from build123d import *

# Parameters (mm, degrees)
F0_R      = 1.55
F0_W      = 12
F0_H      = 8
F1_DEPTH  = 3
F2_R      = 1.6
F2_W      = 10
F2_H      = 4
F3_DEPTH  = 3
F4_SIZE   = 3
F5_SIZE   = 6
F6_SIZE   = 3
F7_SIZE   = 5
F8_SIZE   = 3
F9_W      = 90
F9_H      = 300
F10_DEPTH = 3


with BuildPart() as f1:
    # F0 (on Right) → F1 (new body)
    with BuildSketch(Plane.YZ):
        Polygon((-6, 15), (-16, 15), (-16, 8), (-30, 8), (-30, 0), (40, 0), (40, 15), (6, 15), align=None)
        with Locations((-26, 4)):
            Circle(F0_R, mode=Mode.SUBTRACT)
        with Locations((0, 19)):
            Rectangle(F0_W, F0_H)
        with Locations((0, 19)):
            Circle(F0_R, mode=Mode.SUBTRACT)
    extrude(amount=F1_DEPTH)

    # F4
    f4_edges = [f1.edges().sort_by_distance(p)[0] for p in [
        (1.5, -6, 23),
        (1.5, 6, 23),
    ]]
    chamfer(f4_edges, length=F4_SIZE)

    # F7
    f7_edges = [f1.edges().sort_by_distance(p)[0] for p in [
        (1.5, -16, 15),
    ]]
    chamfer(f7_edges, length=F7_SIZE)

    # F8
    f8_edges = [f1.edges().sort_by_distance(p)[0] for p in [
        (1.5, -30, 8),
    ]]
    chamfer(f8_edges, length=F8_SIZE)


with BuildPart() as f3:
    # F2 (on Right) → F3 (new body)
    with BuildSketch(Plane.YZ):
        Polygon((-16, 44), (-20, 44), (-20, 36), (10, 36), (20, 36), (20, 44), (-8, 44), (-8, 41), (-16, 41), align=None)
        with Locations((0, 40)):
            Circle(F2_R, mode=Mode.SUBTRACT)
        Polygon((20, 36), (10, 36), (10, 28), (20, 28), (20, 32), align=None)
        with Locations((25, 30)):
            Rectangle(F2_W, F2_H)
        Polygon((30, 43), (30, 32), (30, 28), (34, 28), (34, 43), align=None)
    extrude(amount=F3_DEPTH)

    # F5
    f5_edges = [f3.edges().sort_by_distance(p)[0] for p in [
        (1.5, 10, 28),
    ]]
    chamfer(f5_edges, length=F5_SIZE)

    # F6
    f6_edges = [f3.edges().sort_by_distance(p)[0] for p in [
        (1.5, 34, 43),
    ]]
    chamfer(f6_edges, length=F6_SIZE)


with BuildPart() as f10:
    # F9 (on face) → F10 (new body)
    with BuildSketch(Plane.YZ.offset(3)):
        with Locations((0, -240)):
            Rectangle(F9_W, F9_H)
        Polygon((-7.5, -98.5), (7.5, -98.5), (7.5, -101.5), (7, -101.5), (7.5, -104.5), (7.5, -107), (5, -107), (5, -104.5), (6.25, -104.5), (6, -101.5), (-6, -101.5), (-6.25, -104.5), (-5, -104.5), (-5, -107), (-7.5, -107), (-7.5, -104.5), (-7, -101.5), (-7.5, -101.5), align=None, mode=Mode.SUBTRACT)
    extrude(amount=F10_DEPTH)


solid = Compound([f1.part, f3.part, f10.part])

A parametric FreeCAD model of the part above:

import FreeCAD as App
import Part
import Sketcher
from FreeCAD import Vector
Q = App.Units.Quantity


def edges_at(feature, points):
    """Names of the edges that pass closest to the given points."""
    edges = feature.Shape.Edges
    near = lambda p: min(range(len(edges)), key=lambda i: edges[i].distToShape(Part.Vertex(*p))[0])
    return sorted({f"Edge{near(p) + 1}" for p in points})


def add_polygon(sketch, points):
    """Adds a closed chain of lines whose ends are joined by coincident constraints."""
    first, n = sketch.GeometryCount, len(points)
    for a, b in zip(points, points[1:] + points[:1]):
        sketch.addGeometry(Part.LineSegment(App.Vector(*a, 0), App.Vector(*b, 0)), False)
    for i in range(n):
        sketch.addConstraint(Sketcher.Constraint("Coincident", first + i, 2, first + (i + 1) % n, 1))

doc = App.newDocument("Part")
body = doc.addObject("PartDesign::Body", "Body")

# Sketch on YZ plane
sketch1 = body.newObject("Sketcher::SketchObject", "Sketch")
sketch1.AttachmentSupport = (doc.getObject("YZ_Plane"), [""])
sketch1.MapMode = "FlatFace"
add_polygon(sketch1, [(-16, 15), (-16, 8), (-30, 8), (-30, 0), (40, 0), (40, 15), (6, 15), (6, 23), (-6, 23), (-6, 15)])  # lines 0-9
sketch1.addGeometry(Part.Circle(Vector(-26, 4, 0), Vector(0, 0, 1), 1.6), False)  # 10
sketch1.addGeometry(Part.Circle(Vector(0, 19, 0), Vector(0, 0, 1), 1.6), False)  # 11
sketch1.addConstraint([
    Sketcher.Constraint("Vertical", 0),
    Sketcher.Constraint("Horizontal", 1),
    Sketcher.Constraint("Vertical", 2),
    Sketcher.Constraint("Horizontal", 3),
    Sketcher.Constraint("Vertical", 4),
    Sketcher.Constraint("Horizontal", 5),
    Sketcher.Constraint("Vertical", 6),
    Sketcher.Constraint("Horizontal", 7),
    Sketcher.Constraint("Vertical", 8),
    Sketcher.Constraint("Horizontal", 9),
    Sketcher.Constraint("Equal", 10, 11),
    Sketcher.Constraint("Symmetric", 5, 2, 8, 2, -2),
    Sketcher.Constraint("PointOnObject", 11, 3, -2),
    Sketcher.Constraint("PointOnObject", 2, 2, -1),
    Sketcher.Constraint("Equal", 2, 6),
    Sketcher.Constraint("Diameter", 10, Q("3.1 mm")),
    Sketcher.Constraint("DistanceX", 1, 2, 1, 1, Q("14 mm")),
    Sketcher.Constraint("DistanceX", 3, 1, 3, 2, Q("70 mm")),
    Sketcher.Constraint("DistanceX", 5, 2, 5, 1, Q("34 mm")),
    Sketcher.Constraint("DistanceX", 7, 2, 7, 1, Q("12 mm")),
    Sketcher.Constraint("DistanceY", 0, 2, 0, 1, Q("7 mm")),
    Sketcher.Constraint("DistanceY", 2, 2, 2, 1, Q("8 mm")),
    Sketcher.Constraint("DistanceX", 10, 3, -1, 1, Q("26 mm")),
    Sketcher.Constraint("DistanceY", -1, 1, 10, 3, Q("4 mm")),
    Sketcher.Constraint("DistanceY", -1, 1, 11, 3, Q("19 mm")),
])
pad1 = body.newObject("PartDesign::Pad", "Pad")
pad1.Profile = sketch1
pad1.Length = 3
doc.recompute()

chamfer = body.newObject("PartDesign::Chamfer", "Chamfer")
chamfer.Base = (pad1, edges_at(pad1, [(1.5, -6, 23), (1.5, 6, 23)]))
chamfer.Size = 3
doc.recompute()

chamfer2 = body.newObject("PartDesign::Chamfer", "Chamfer001")
chamfer2.Base = (chamfer, edges_at(chamfer, [(1.5, -16, 15)]))
chamfer2.Size = 5
doc.recompute()

chamfer3 = body.newObject("PartDesign::Chamfer", "Chamfer002")
chamfer3.Base = (chamfer2, edges_at(chamfer2, [(1.5, -30, 8)]))
chamfer3.Size = 3
body2 = doc.addObject("PartDesign::Body", "Body001")

# Sketch on YZ plane
sketch2 = body2.newObject("Sketcher::SketchObject", "Sketch001")
sketch2.AttachmentSupport = (doc.getObject("YZ_Plane001"), [""])
sketch2.MapMode = "FlatFace"
add_polygon(sketch2, [(-16, 44), (-20, 44), (-20, 36), (10, 36), (10, 28), (34, 28), (34, 43), (30, 43), (30, 32), (20, 32), (20, 44), (-8, 44), (-8, 41), (-16, 41)])  # lines 0-13
sketch2.addGeometry(Part.Circle(Vector(0, 40, 0), Vector(0, 0, 1), 1.6), False)  # 14
sketch2.addConstraint([
    Sketcher.Constraint("Horizontal", 0),
    Sketcher.Constraint("Vertical", 1),
    Sketcher.Constraint("Horizontal", 2),
    Sketcher.Constraint("Vertical", 3),
    Sketcher.Constraint("Horizontal", 4),
    Sketcher.Constraint("Vertical", 5),
    Sketcher.Constraint("Horizontal", 6),
    Sketcher.Constraint("Vertical", 7),
    Sketcher.Constraint("Horizontal", 8),
    Sketcher.Constraint("Vertical", 9),
    Sketcher.Constraint("Horizontal", 10),
    Sketcher.Constraint("Vertical", 11),
    Sketcher.Constraint("Horizontal", 12),
    Sketcher.Constraint("Vertical", 13),
    Sketcher.Constraint("Symmetric", 0, 2, 9, 2, -2),
    Sketcher.Constraint("PointOnObject", 14, 3, -2),
    Sketcher.Constraint("Equal", 0, 6),
    Sketcher.Constraint("Equal", 12, 1),
    Sketcher.Constraint("Equal", 1, 3),
    Sketcher.Constraint("Diameter", 14, Q("3.2 mm")),
    Sketcher.Constraint("DistanceX", 0, 2, 0, 1, Q("4 mm")),
    Sketcher.Constraint("DistanceX", 2, 1, 2, 2, Q("30 mm")),
    Sketcher.Constraint("DistanceX", 4, 1, 4, 2, Q("24 mm")),
    Sketcher.Constraint("DistanceX", 8, 2, 8, 1, Q("10 mm")),
    Sketcher.Constraint("DistanceX", 10, 2, 10, 1, Q("28 mm")),
    Sketcher.Constraint("DistanceY", 5, 1, 5, 2, Q("15 mm")),
    Sketcher.Constraint("DistanceY", 7, 2, 7, 1, Q("11 mm")),
    Sketcher.Constraint("DistanceY", 11, 2, 11, 1, Q("3 mm")),
    Sketcher.Constraint("DistanceY", -1, 1, 14, 3, Q("40 mm")),
    Sketcher.Constraint("DistanceY", -1, 1, 0, 2, Q("44 mm")),
])
pad2 = body2.newObject("PartDesign::Pad", "Pad001")
pad2.Profile = sketch2
pad2.Length = 3
doc.recompute()

chamfer4 = body2.newObject("PartDesign::Chamfer", "Chamfer003")
chamfer4.Base = (pad2, edges_at(pad2, [(1.5, 10, 28)]))
chamfer4.Size = 6
doc.recompute()

chamfer5 = body2.newObject("PartDesign::Chamfer", "Chamfer004")
chamfer5.Base = (chamfer4, edges_at(chamfer4, [(1.5, 34, 43)]))
chamfer5.Size = 3
body3 = doc.addObject("PartDesign::Body", "Body002")

# Sketch on YZ plane
sketch3 = body3.newObject("Sketcher::SketchObject", "Sketch002")
sketch3.AttachmentSupport = (doc.getObject("YZ_Plane002"), [""])
sketch3.MapMode = "FlatFace"
sketch3.AttachmentOffset = App.Placement(Vector(0, 0, 3), App.Rotation())
add_polygon(sketch3, [(-45, -90), (-45, -390), (45, -390), (45, -90)])  # lines 0-3
add_polygon(sketch3, [(-7.5, -101.5), (-7.5, -98.5), (7.5, -98.5), (7.5, -101.5), (7, -101.5), (7.5, -104.5), (7.5, -107), (5, -107), (5, -104.5), (6.2, -104.5), (6, -101.5), (-6, -101.5), (-6.2, -104.5), (-5, -104.5), (-5, -107), (-7.5, -107), (-7.5, -104.5), (-7, -101.5)])  # lines 4-21
sketch3.addConstraint([
    Sketcher.Constraint("Vertical", 0),
    Sketcher.Constraint("Horizontal", 1),
    Sketcher.Constraint("Vertical", 2),
    Sketcher.Constraint("Horizontal", 3),
    Sketcher.Constraint("Vertical", 4),
    Sketcher.Constraint("Horizontal", 5),
    Sketcher.Constraint("Vertical", 6),
    Sketcher.Constraint("Horizontal", 7),
    Sketcher.Constraint("Vertical", 9),
    Sketcher.Constraint("Horizontal", 10),
    Sketcher.Constraint("Vertical", 11),
    Sketcher.Constraint("Horizontal", 12),
    Sketcher.Constraint("Horizontal", 14),
    Sketcher.Constraint("Horizontal", 16),
    Sketcher.Constraint("Vertical", 17),
    Sketcher.Constraint("Horizontal", 18),
    Sketcher.Constraint("Vertical", 19),
    Sketcher.Constraint("Horizontal", 21),
    Sketcher.Constraint("Symmetric", 12, 2, 15, 2, -2),
    Sketcher.Constraint("Symmetric", 10, 2, 17, 2, -2),
    Sketcher.Constraint("Symmetric", 8, 2, 19, 2, -2),
    Sketcher.Constraint("Symmetric", 7, 2, 20, 2, -2),
    Sketcher.Constraint("Horizontal", 8, 2, 11, 2),
    Sketcher.Constraint("Horizontal", 7, 2, 13, 2),
    Sketcher.Constraint("Vertical", 6, 2, 8, 2),
    Sketcher.Constraint("Vertical", 4, 2, 18, 2),
    Sketcher.Constraint("Equal", 18, 9),
    Sketcher.Constraint("Equal", 13, 15),
    Sketcher.Constraint("DistanceX", 1, 1, 1, 2, Q("90 mm")),
    Sketcher.Constraint("DistanceX", 5, 1, 5, 2, Q("15 mm")),
    Sketcher.Constraint("DistanceX", 14, 2, 14, 1, Q("12 mm")),
    Sketcher.Constraint("DistanceY", 0, 2, 0, 1, Q("300 mm")),
    Sketcher.Constraint("DistanceY", 4, 1, 4, 2, Q("3 mm")),
    Sketcher.Constraint("DistanceX", 7, 2, 7, 1, Q("0.5 mm")),
    Sketcher.Constraint("DistanceX", 10, 2, 10, 1, Q("2.5 mm")),
    Sketcher.Constraint("DistanceX", 0, 2, -1, 1, Q("45 mm")),
    Sketcher.Constraint("DistanceY", 0, 2, -1, 1, Q("390 mm")),
    Sketcher.Constraint("DistanceY", 9, 2, -1, 1, Q("107 mm")),
    Sketcher.Constraint("DistanceY", 8, 2, 6, 2, Q("3 mm")),
    Sketcher.Constraint("DistanceX", 12, 1, 12, 2, Q("1.25 mm")),
])
pad3 = body3.newObject("PartDesign::Pad", "Pad002")
pad3.Profile = sketch3
pad3.Length = 3

doc.recompute()
